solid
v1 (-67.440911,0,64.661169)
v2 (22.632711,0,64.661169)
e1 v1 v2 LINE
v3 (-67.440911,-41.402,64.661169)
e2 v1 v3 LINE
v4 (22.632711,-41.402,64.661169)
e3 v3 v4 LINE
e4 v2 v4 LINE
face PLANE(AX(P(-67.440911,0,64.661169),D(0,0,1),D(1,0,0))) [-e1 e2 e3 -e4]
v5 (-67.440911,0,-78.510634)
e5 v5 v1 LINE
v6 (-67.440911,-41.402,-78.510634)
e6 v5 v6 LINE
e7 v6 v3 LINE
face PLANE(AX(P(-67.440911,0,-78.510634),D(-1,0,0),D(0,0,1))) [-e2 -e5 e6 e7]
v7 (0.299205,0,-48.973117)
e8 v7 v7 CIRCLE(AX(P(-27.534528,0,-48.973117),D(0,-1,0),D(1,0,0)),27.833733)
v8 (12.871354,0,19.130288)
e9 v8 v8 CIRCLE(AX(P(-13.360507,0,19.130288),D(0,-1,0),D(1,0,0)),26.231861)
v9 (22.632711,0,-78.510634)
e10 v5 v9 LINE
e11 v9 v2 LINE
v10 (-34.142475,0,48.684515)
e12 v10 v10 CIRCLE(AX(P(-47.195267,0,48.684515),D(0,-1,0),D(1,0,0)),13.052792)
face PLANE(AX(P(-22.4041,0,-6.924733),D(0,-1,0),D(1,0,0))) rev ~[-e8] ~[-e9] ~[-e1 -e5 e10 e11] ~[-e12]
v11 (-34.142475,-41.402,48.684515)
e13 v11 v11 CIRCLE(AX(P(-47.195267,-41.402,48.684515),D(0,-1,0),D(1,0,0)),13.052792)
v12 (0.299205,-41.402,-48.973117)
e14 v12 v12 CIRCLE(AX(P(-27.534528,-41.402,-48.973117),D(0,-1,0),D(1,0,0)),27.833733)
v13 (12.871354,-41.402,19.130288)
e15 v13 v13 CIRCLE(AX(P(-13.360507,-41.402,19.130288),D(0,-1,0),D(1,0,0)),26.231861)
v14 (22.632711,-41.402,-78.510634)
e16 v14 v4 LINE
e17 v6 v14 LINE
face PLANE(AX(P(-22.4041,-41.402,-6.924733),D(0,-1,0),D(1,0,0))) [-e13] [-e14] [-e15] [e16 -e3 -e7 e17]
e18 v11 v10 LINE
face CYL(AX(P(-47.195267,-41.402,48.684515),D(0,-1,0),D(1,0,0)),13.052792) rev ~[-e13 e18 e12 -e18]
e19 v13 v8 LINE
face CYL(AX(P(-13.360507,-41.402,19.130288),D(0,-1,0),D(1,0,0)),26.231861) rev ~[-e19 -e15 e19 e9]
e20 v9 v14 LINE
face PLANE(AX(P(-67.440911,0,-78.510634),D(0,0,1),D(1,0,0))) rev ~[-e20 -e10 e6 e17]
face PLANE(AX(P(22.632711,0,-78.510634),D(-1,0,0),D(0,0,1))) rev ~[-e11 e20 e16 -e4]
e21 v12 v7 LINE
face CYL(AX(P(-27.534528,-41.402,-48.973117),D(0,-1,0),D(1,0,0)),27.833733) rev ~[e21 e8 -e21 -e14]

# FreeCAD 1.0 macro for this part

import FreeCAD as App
import Part
import Sketcher
Q = App.Units.Quantity

doc = App.newDocument("Part")
body = doc.addObject("PartDesign::Body", "Body")

# Sketch on XZ plane
sketch1 = doc.addObject("Sketcher::SketchObject", "Sketch")
body.addObject(sketch1)
sketch1.AttachmentSupport = (doc.XZ_Plane, [""])
sketch1.MapMode = "FlatFace"
sketch1.addGeometry(Part.LineSegment(App.Vector(-67.440911, 64.661169, 0), App.Vector(-67.440911, -78.510634, 0)), False)
sketch1.addGeometry(Part.LineSegment(App.Vector(-67.440911, -78.510634, 0), App.Vector(22.632711, -78.510634, 0)), False)
sketch1.addGeometry(Part.LineSegment(App.Vector(22.632711, -78.510634, 0), App.Vector(22.632711, 64.661169, 0)), False)
sketch1.addGeometry(Part.LineSegment(App.Vector(22.632711, 64.661169, 0), App.Vector(-67.440911, 64.661169, 0)), False)
sketch1.addConstraint(Sketcher.Constraint("Coincident", 0, 2, 1, 1))
sketch1.addConstraint(Sketcher.Constraint("Coincident", 1, 2, 2, 1))
sketch1.addConstraint(Sketcher.Constraint("Coincident", 2, 2, 3, 1))
sketch1.addConstraint(Sketcher.Constraint("Coincident", 3, 2, 0, 1))
sketch1.addConstraint(Sketcher.Constraint("Vertical", 0))
sketch1.addConstraint(Sketcher.Constraint("Horizontal", 1))
sketch1.addConstraint(Sketcher.Constraint("Vertical", 2))
sketch1.addConstraint(Sketcher.Constraint("Horizontal", 3))
sketch1.addConstraint(Sketcher.Constraint("DistanceX", 1, 1, 1, 2, 90.073623))
sketch1.addConstraint(Sketcher.Constraint("DistanceY", 0, 2, 0, 1, 143.171803))
sketch1.addConstraint(Sketcher.Constraint("DistanceX", 0, 2, -1, 1, 67.440911))
sketch1.addConstraint(Sketcher.Constraint("DistanceY", -1, 1, 2, 2, 64.661169))
pad1 = doc.addObject("PartDesign::Pad", "Pad")
body.addObject(pad1)
pad1.Profile = sketch1
pad1.Length = Q("1.63 in")

# Sketch on XZ plane
sketch2 = doc.addObject("Sketcher::SketchObject", "Sketch001")
body.addObject(sketch2)
sketch2.AttachmentSupport = (doc.XZ_Plane, [""])
sketch2.MapMode = "FlatFace"
sketch2.AttachmentOffset = App.Placement(App.Vector(0, 0, 1.63 * 25.4), App.Rotation())
sketch2.addGeometry(Part.Circle(App.Vector(-13.360507, 19.130288, 0), App.Vector(0, 0, 1), 26.231861), False)
sketch2.addGeometry(Part.Circle(App.Vector(-27.534528, -48.973117, 0), App.Vector(0, 0, 1), 27.833733), False)
sketch2.addGeometry(Part.Circle(App.Vector(-47.195267, 48.684515, 0), App.Vector(0, 0, 1), 13.052792), False)
sketch2.addConstraint(Sketcher.Constraint("Diameter", 0, 52.463722))
sketch2.addConstraint(Sketcher.Constraint("Diameter", 1, 55.667466))
sketch2.addConstraint(Sketcher.Constraint("Diameter", 2, 26.105584))
sketch2.addConstraint(Sketcher.Constraint("DistanceY", -1, 1, 0, 3, 19.130288))
sketch2.addConstraint(Sketcher.Constraint("DistanceX", 1, 3, -1, 1, 27.534528))
sketch2.addConstraint(Sketcher.Constraint("DistanceX", 1, 3, 0, 3, 14.174021))
sketch2.addConstraint(Sketcher.Constraint("DistanceX", 2, 3, 0, 3, 33.83476))
sketch2.addConstraint(Sketcher.Constraint("DistanceY", 1, 3, -1, 1, 48.973117))
sketch2.addConstraint(Sketcher.Constraint("DistanceY", -1, 1, 2, 3, 48.684515))
pocket1 = doc.addObject("PartDesign::Pocket", "Pocket")
body.addObject(pocket1)
pocket1.Profile = sketch2
pocket1.Length = Q("2.25 in")

doc.recompute()
